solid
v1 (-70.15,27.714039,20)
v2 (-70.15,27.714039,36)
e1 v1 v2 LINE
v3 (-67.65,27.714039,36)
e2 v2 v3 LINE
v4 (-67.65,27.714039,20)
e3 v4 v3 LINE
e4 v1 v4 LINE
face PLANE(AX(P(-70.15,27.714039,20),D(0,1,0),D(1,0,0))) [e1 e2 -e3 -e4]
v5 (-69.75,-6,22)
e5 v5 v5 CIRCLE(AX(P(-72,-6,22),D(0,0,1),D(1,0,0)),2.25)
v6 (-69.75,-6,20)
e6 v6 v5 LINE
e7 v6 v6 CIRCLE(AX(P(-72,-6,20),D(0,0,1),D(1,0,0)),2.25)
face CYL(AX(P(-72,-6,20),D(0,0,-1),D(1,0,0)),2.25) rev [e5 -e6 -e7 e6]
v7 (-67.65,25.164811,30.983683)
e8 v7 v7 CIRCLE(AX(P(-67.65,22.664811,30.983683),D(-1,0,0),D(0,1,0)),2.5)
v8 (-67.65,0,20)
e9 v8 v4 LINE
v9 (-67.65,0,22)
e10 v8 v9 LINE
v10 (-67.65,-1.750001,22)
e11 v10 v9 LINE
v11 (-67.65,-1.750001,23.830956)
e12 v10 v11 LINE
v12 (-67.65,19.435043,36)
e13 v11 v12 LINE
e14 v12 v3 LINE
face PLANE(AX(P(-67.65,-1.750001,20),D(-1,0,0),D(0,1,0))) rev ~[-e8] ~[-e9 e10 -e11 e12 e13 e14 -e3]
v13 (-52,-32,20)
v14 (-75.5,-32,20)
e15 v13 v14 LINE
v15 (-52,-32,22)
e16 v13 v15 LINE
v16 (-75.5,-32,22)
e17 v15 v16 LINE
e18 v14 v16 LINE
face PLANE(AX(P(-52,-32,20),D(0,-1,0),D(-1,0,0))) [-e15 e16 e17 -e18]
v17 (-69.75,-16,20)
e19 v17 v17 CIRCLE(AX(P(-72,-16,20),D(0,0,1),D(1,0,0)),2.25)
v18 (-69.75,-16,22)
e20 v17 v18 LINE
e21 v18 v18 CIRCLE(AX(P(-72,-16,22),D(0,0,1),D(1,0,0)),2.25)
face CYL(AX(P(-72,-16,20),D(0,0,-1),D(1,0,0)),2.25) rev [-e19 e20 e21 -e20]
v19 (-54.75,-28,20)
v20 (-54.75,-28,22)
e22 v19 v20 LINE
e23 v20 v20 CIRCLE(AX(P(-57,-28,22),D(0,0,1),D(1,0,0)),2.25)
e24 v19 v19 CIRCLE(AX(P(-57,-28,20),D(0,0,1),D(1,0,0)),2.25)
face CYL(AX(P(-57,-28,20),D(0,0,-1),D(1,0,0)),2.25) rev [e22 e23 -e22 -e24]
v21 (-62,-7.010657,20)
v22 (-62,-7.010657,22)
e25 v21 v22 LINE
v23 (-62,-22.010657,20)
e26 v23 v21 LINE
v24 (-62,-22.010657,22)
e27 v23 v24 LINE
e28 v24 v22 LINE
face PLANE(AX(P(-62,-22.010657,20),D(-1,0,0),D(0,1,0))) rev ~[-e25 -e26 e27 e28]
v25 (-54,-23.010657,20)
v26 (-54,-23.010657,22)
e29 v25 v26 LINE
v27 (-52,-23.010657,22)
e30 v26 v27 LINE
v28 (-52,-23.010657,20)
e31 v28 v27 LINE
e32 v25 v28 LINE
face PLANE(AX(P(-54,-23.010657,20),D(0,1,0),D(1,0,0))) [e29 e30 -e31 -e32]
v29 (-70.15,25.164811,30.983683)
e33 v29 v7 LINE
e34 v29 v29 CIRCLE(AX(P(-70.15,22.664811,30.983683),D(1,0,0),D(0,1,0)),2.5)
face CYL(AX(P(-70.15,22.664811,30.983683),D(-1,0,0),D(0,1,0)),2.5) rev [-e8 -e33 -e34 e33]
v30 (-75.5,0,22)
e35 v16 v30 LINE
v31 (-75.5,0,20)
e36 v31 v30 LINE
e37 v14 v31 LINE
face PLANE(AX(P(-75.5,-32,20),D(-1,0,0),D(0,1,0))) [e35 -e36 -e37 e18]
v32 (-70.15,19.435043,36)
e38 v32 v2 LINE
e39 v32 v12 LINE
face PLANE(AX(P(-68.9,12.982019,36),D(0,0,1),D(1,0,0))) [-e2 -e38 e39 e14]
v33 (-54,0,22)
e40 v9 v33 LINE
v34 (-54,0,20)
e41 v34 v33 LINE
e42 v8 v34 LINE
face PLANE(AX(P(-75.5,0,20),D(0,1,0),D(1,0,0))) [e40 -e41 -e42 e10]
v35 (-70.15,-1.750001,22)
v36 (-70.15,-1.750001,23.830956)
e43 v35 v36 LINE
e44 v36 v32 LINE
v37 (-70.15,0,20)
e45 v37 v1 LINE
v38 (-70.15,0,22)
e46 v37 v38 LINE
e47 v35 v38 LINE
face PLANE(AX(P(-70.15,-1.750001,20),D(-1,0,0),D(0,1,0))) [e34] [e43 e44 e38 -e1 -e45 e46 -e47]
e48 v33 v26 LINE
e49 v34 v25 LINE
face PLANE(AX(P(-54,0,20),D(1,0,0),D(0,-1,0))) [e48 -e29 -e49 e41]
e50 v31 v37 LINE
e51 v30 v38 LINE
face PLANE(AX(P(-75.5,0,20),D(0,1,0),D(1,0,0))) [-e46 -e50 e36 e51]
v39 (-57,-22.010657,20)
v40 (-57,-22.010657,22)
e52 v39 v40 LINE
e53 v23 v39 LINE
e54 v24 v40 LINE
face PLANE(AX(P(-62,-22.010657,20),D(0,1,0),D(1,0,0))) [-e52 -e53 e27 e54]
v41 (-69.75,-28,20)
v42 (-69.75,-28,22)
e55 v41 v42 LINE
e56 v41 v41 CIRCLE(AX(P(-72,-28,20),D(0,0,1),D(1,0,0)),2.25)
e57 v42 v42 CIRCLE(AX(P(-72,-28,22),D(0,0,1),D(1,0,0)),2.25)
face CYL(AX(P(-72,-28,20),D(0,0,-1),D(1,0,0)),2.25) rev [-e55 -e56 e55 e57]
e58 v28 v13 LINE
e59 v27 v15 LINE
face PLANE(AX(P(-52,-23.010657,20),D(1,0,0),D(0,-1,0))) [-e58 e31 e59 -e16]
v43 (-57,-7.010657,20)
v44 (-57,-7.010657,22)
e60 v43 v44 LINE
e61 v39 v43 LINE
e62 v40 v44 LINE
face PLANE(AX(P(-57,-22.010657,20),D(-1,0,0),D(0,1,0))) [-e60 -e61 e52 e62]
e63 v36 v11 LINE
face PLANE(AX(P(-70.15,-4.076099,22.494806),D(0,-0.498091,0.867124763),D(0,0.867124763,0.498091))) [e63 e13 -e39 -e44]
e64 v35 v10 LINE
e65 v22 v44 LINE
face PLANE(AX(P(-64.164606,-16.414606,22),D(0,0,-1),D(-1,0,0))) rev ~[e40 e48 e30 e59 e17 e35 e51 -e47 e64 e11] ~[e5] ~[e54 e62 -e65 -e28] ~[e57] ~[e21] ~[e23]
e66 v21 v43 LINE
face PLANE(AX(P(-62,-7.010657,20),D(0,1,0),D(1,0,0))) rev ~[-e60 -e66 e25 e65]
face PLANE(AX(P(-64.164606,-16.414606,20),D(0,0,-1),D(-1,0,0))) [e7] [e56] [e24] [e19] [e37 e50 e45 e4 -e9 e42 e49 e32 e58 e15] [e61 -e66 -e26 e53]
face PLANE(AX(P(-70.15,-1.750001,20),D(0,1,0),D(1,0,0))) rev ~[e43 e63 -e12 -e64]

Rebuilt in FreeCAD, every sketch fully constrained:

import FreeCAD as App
import Part
import Sketcher
Q = App.Units.Quantity

doc = App.newDocument("Part")
body = doc.addObject("PartDesign::Body", "Body")

sketch1 = body.newObject("Sketcher::SketchObject", "Sketch")
sketch1.AttachmentSupport = (doc.getObject("XY_Plane"), [""])
sketch1.MapMode = "FlatFace"
sketch1.addGeometry(Part.LineSegment(App.Vector(-75.5, -32, 0), App.Vector(-52, -32, 0)), False)
sketch1.addGeometry(Part.LineSegment(App.Vector(-52, -32, 0), App.Vector(-52, -23, 0)), False)
sketch1.addGeometry(Part.LineSegment(App.Vector(-52, -23, 0), App.Vector(-54, -23, 0)), False)
sketch1.addGeometry(Part.LineSegment(App.Vector(-54, -23, 0), App.Vector(-54, 0, 0)), False)
sketch1.addGeometry(Part.LineSegment(App.Vector(-54, 0, 0), App.Vector(-75.5, 0, 0)), False)
sketch1.addGeometry(Part.LineSegment(App.Vector(-75.5, 0, 0), App.Vector(-75.5, -32, 0)), False)
sketch1.addGeometry(Part.Circle(App.Vector(-57, -28, 0), App.Vector(0, 0, 1), 2.2), False)
sketch1.addGeometry(Part.Circle(App.Vector(-72, -28, 0), App.Vector(0, 0, 1), 2.2), False)
sketch1.addGeometry(Part.LineSegment(App.Vector(-62, -22, 0), App.Vector(-62, -7, 0)), False)
sketch1.addGeometry(Part.LineSegment(App.Vector(-62, -7, 0), App.Vector(-57, -7, 0)), False)
sketch1.addGeometry(Part.LineSegment(App.Vector(-57, -7, 0), App.Vector(-57, -22, 0)), False)
sketch1.addGeometry(Part.LineSegment(App.Vector(-57, -22, 0), App.Vector(-62, -22, 0)), False)
sketch1.addGeometry(Part.Circle(App.Vector(-72, -16, 0), App.Vector(0, 0, 1), 2.2), False)
sketch1.addGeometry(Part.Circle(App.Vector(-72, -6, 0), App.Vector(0, 0, 1), 2.2), False)
sketch1.addConstraint(Sketcher.Constraint("Coincident", 0, 2, 1, 1))
sketch1.addConstraint(Sketcher.Constraint("Coincident", 1, 2, 2, 1))
sketch1.addConstraint(Sketcher.Constraint("Coincident", 2, 2, 3, 1))
sketch1.addConstraint(Sketcher.Constraint("Coincident", 3, 2, 4, 1))
sketch1.addConstraint(Sketcher.Constraint("Coincident", 4, 2, 5, 1))
sketch1.addConstraint(Sketcher.Constraint("Coincident", 5, 2, 0, 1))
sketch1.addConstraint(Sketcher.Constraint("Coincident", 8, 2, 9, 1))
sketch1.addConstraint(Sketcher.Constraint("Coincident", 9, 2, 10, 1))
sketch1.addConstraint(Sketcher.Constraint("Coincident", 10, 2, 11, 1))
sketch1.addConstraint(Sketcher.Constraint("Coincident", 11, 2, 8, 1))
sketch1.addConstraint(Sketcher.Constraint("Horizontal", 0))
sketch1.addConstraint(Sketcher.Constraint("Vertical", 1))
sketch1.addConstraint(Sketcher.Constraint("Horizontal", 2))
sketch1.addConstraint(Sketcher.Constraint("Vertical", 3))
sketch1.addConstraint(Sketcher.Constraint("Horizontal", 4))
sketch1.addConstraint(Sketcher.Constraint("Vertical", 5))
sketch1.addConstraint(Sketcher.Constraint("Vertical", 8))
sketch1.addConstraint(Sketcher.Constraint("Horizontal", 9))
sketch1.addConstraint(Sketcher.Constraint("Vertical", 10))
sketch1.addConstraint(Sketcher.Constraint("Horizontal", 11))
sketch1.addConstraint(Sketcher.Constraint("Equal", 6, 7))
sketch1.addConstraint(Sketcher.Constraint("Equal", 7, 12))
sketch1.addConstraint(Sketcher.Constraint("Equal", 12, 13))
sketch1.addConstraint(Sketcher.Constraint("PointOnObject", 3, 2, -1))
sketch1.addConstraint(Sketcher.Constraint("Horizontal", 6, 3, 7, 3))
sketch1.addConstraint(Sketcher.Constraint("Vertical", 7, 3, 12, 3))
sketch1.addConstraint(Sketcher.Constraint("Vertical", 12, 3, 13, 3))
sketch1.addConstraint(Sketcher.Constraint("Vertical", 6, 3, 9, 2))
sketch1.addConstraint(Sketcher.Constraint("Diameter", 6, Q("4.5 mm")))
sketch1.addConstraint(Sketcher.Constraint("DistanceX", 2, 2, 2, 1, Q("2 mm")))
sketch1.addConstraint(Sketcher.Constraint("DistanceX", 9, 1, 9, 2, Q("5 mm")))
sketch1.addConstraint(Sketcher.Constraint("DistanceY", 5, 2, 5, 1, Q("32 mm")))
sketch1.addConstraint(Sketcher.Constraint("DistanceY", 8, 1, 8, 2, Q("15 mm")))
sketch1.addConstraint(Sketcher.Constraint("DistanceX", 0, 1, 0, 2, Q("23.5 mm")))
sketch1.addConstraint(Sketcher.Constraint("DistanceX", 6, 3, -1, 1, Q("57 mm")))
sketch1.addConstraint(Sketcher.Constraint("DistanceY", 6, 3, -1, 1, Q("28 mm")))
sketch1.addConstraint(Sketcher.Constraint("DistanceX", 7, 3, -1, 1, Q("72 mm")))
sketch1.addConstraint(Sketcher.Constraint("DistanceY", 12, 3, -1, 1, Q("16 mm")))
sketch1.addConstraint(Sketcher.Constraint("DistanceY", 13, 3, -1, 1, Q("6 mm")))
sketch1.addConstraint(Sketcher.Constraint("DistanceX", 0, 2, -1, 1, Q("52 mm")))
sketch1.addConstraint(Sketcher.Constraint("DistanceY", 2, 2, 8, 2, Q("16 mm")))
sketch1.addConstraint(Sketcher.Constraint("DistanceY", 1, 1, 1, 2, Q("8.989343 mm")))
pad1 = body.newObject("PartDesign::Pad", "Pad")
pad1.Profile = sketch1
pad1.Length = 2

sketch2 = body.newObject("Sketcher::SketchObject", "Sketch001")
sketch2.AttachmentSupport = (doc.getObject("XY_Plane"), [""])
sketch2.MapMode = "FlatFace"
sketch2.addGeometry(Part.LineSegment(App.Vector(-70.2, 27.7, 0), App.Vector(-70.2, -1.8, 0)), False)
sketch2.addGeometry(Part.LineSegment(App.Vector(-70.2, -1.8, 0), App.Vector(-67.7, -1.8, 0)), False)
sketch2.addGeometry(Part.LineSegment(App.Vector(-67.7, -1.8, 0), App.Vector(-67.7, 27.7, 0)), False)
sketch2.addGeometry(Part.LineSegment(App.Vector(-67.7, 27.7, 0), App.Vector(-70.2, 27.7, 0)), False)
sketch2.addConstraint(Sketcher.Constraint("Coincident", 0, 2, 1, 1))
sketch2.addConstraint(Sketcher.Constraint("Coincident", 1, 2, 2, 1))
sketch2.addConstraint(Sketcher.Constraint("Coincident", 2, 2, 3, 1))
sketch2.addConstraint(Sketcher.Constraint("Coincident", 3, 2, 0, 1))
sketch2.addConstraint(Sketcher.Constraint("Vertical", 0))
sketch2.addConstraint(Sketcher.Constraint("Horizontal", 1))
sketch2.addConstraint(Sketcher.Constraint("Vertical", 2))
sketch2.addConstraint(Sketcher.Constraint("Horizontal", 3))
sketch2.addConstraint(Sketcher.Constraint("DistanceX", 1, 1, 1, 2, Q("2.5 mm")))
sketch2.addConstraint(Sketcher.Constraint("DistanceX", 0, 2, -1, 1, Q("70.15 mm")))
sketch2.addConstraint(Sketcher.Constraint("DistanceY", 0, 2, -1, 1, Q("1.750001 mm")))
sketch2.addConstraint(Sketcher.Constraint("DistanceY", 0, 2, 0, 1, Q("29.464039 mm")))
pad2 = body.newObject("PartDesign::Pad", "Pad001")
pad2.Profile = sketch2
pad2.Length = 16

sketch3 = body.newObject("Sketcher::SketchObject", "Sketch002")
sketch3.AttachmentSupport = (doc.getObject("YZ_Plane"), [""])
sketch3.MapMode = "FlatFace"
sketch3.AttachmentOffset = App.Placement(App.Vector(0, 0, -70.15), App.Rotation())
sketch3.addGeometry(Part.Circle(App.Vector(22.7, 11, 0), App.Vector(0, 0, 1), 2.5), False)
sketch3.addConstraint(Sketcher.Constraint("Diameter", 0, Q("5 mm")))
sketch3.addConstraint(Sketcher.Constraint("DistanceX", -1, 1, 0, 3, Q("22.664811 mm")))
sketch3.addConstraint(Sketcher.Constraint("DistanceY", -1, 1, 0, 3, Q("10.983683 mm")))
pocket1 = body.newObject("PartDesign::Pocket", "Pocket")
pocket1.Profile = sketch3
pocket1.Type = "ThroughAll"
pocket1.Reversed = True

sketch4 = body.newObject("Sketcher::SketchObject", "Sketch003")
sketch4.AttachmentSupport = (doc.getObject("YZ_Plane"), [""])
sketch4.MapMode = "FlatFace"
sketch4.AttachmentOffset = App.Placement(App.Vector(0, 0, -70.15), App.Rotation())
sketch4.addGeometry(Part.LineSegment(App.Vector(-4, 2, 0), App.Vector(27, 20, 0)), False)
sketch4.addGeometry(Part.LineSegment(App.Vector(27, 20, 0), App.Vector(-4, 20, 0)), False)
sketch4.addGeometry(Part.LineSegment(App.Vector(-4, 20, 0), App.Vector(-4, 2, 0)), False)
sketch4.addConstraint(Sketcher.Constraint("Coincident", 0, 2, 1, 1))
sketch4.addConstraint(Sketcher.Constraint("Coincident", 1, 2, 2, 1))
sketch4.addConstraint(Sketcher.Constraint("Coincident", 2, 2, 0, 1))
sketch4.addConstraint(Sketcher.Constraint("Horizontal", 1))
sketch4.addConstraint(Sketcher.Constraint("Vertical", 2))
sketch4.addConstraint(Sketcher.Constraint("DistanceX", 1, 2, 1, 1, Q("31.270219 mm")))
sketch4.addConstraint(Sketcher.Constraint("DistanceX", 1, 2, -1, 1, Q("4.076099 mm")))
sketch4.addConstraint(Sketcher.Constraint("Distance", 0, Q("36.061961 mm")))
sketch4.addConstraint(Sketcher.Constraint("DistanceY", -1, 1, 0, 2, Q("20.456944 mm")))
pocket2 = body.newObject("PartDesign::Pocket", "Pocket001")
pocket2.Profile = sketch4
pocket2.Length = 5
pocket2.Reversed = True
body2 = doc.addObject("PartDesign::Body", "Body001")
doc.recompute()

body.Placement = App.Placement(App.Vector(0, 0, 20), App.Rotation(App.Vector(0, 0, 1), 0))
boolean = body2.newObject("PartDesign::Boolean", "Boolean")
boolean.Type = "Fuse"
boolean.addObjects([body])

doc.recompute()
